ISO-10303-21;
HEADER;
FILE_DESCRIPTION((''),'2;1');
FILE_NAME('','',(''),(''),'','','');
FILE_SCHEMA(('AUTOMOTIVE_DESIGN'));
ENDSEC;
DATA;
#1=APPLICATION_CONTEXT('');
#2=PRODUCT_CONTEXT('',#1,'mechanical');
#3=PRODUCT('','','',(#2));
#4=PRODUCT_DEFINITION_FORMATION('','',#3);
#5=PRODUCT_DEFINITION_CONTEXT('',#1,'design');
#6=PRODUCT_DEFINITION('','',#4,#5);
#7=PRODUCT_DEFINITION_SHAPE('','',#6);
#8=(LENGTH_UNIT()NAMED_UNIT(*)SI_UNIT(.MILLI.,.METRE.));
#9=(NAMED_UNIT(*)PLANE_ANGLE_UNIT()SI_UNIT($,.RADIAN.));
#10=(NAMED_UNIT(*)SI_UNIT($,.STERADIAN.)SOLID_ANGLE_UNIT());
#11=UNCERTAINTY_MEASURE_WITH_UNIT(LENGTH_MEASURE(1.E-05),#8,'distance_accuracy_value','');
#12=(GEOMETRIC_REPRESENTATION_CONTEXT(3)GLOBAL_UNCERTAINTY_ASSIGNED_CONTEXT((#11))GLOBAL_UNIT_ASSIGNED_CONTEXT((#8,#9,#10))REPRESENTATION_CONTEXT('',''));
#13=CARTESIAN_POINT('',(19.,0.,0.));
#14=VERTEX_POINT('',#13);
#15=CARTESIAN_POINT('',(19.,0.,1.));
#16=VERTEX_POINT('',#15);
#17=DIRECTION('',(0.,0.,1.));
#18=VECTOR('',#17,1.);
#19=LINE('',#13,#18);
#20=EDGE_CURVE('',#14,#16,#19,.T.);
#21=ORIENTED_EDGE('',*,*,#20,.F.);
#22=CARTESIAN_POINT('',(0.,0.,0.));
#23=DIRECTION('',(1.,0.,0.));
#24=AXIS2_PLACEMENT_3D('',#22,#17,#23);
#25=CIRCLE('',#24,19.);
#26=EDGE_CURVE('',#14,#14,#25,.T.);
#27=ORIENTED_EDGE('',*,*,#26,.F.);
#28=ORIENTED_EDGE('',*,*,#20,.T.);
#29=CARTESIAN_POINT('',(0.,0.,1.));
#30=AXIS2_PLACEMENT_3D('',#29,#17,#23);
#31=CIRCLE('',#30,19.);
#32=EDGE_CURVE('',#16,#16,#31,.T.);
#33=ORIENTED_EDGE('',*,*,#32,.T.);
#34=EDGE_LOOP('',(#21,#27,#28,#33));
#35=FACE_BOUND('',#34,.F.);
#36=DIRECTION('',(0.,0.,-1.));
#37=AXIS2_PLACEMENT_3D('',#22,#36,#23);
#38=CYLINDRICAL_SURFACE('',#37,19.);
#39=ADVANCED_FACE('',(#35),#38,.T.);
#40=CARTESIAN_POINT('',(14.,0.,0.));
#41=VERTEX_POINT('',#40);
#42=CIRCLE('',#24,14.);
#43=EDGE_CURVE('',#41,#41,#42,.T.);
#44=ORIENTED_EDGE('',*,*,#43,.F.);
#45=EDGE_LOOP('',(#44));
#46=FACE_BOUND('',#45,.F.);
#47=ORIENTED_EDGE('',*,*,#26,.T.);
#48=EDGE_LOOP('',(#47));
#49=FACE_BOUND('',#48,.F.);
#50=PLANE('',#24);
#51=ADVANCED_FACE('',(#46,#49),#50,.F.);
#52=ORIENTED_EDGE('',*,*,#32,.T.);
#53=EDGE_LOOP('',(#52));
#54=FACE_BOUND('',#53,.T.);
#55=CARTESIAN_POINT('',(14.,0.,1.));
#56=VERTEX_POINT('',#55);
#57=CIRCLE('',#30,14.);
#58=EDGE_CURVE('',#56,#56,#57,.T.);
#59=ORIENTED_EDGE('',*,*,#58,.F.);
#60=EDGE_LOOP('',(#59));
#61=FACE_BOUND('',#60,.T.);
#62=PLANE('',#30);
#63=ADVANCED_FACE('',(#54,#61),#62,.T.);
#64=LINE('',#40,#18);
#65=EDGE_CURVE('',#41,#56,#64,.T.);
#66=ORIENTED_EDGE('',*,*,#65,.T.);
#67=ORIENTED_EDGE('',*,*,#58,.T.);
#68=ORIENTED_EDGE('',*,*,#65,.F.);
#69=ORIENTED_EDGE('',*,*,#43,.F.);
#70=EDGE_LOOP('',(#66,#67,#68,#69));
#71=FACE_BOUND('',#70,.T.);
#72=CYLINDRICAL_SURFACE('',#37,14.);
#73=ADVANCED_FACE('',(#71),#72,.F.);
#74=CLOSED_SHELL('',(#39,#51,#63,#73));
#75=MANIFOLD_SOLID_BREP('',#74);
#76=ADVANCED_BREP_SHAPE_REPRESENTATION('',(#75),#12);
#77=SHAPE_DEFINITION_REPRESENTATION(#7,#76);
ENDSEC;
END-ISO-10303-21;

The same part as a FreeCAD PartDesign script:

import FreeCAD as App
import Part
import Sketcher

V = App.Vector

doc = App.newDocument("Part")
body = doc.addObject("PartDesign::Body", "Body")

# Sketch on XY plane
sketch1 = doc.addObject("Sketcher::SketchObject", "Sketch")
body.addObject(sketch1)
sketch1.AttachmentSupport = (doc.XY_Plane, [""])
sketch1.MapMode = "FlatFace"
sketch1.addGeometry([
    Part.Circle(V(0, 0, 0), V(0, 0, 1), 19),
    Part.Circle(V(0, 0, 0), V(0, 0, 1), 14),
], False)
sketch1.addConstraint([
    Sketcher.Constraint("Coincident", 0, 3, -1, 1),
    Sketcher.Constraint("Coincident", 1, 3, -1, 1),
    Sketcher.Constraint("Diameter", 0, 38.0),
    Sketcher.Constraint("Diameter", 1, 28.0),
])
pad1 = doc.addObject("PartDesign::Pad", "Pad")
body.addObject(pad1)
pad1.Profile = sketch1
pad1.Length = 1

doc.recompute()
